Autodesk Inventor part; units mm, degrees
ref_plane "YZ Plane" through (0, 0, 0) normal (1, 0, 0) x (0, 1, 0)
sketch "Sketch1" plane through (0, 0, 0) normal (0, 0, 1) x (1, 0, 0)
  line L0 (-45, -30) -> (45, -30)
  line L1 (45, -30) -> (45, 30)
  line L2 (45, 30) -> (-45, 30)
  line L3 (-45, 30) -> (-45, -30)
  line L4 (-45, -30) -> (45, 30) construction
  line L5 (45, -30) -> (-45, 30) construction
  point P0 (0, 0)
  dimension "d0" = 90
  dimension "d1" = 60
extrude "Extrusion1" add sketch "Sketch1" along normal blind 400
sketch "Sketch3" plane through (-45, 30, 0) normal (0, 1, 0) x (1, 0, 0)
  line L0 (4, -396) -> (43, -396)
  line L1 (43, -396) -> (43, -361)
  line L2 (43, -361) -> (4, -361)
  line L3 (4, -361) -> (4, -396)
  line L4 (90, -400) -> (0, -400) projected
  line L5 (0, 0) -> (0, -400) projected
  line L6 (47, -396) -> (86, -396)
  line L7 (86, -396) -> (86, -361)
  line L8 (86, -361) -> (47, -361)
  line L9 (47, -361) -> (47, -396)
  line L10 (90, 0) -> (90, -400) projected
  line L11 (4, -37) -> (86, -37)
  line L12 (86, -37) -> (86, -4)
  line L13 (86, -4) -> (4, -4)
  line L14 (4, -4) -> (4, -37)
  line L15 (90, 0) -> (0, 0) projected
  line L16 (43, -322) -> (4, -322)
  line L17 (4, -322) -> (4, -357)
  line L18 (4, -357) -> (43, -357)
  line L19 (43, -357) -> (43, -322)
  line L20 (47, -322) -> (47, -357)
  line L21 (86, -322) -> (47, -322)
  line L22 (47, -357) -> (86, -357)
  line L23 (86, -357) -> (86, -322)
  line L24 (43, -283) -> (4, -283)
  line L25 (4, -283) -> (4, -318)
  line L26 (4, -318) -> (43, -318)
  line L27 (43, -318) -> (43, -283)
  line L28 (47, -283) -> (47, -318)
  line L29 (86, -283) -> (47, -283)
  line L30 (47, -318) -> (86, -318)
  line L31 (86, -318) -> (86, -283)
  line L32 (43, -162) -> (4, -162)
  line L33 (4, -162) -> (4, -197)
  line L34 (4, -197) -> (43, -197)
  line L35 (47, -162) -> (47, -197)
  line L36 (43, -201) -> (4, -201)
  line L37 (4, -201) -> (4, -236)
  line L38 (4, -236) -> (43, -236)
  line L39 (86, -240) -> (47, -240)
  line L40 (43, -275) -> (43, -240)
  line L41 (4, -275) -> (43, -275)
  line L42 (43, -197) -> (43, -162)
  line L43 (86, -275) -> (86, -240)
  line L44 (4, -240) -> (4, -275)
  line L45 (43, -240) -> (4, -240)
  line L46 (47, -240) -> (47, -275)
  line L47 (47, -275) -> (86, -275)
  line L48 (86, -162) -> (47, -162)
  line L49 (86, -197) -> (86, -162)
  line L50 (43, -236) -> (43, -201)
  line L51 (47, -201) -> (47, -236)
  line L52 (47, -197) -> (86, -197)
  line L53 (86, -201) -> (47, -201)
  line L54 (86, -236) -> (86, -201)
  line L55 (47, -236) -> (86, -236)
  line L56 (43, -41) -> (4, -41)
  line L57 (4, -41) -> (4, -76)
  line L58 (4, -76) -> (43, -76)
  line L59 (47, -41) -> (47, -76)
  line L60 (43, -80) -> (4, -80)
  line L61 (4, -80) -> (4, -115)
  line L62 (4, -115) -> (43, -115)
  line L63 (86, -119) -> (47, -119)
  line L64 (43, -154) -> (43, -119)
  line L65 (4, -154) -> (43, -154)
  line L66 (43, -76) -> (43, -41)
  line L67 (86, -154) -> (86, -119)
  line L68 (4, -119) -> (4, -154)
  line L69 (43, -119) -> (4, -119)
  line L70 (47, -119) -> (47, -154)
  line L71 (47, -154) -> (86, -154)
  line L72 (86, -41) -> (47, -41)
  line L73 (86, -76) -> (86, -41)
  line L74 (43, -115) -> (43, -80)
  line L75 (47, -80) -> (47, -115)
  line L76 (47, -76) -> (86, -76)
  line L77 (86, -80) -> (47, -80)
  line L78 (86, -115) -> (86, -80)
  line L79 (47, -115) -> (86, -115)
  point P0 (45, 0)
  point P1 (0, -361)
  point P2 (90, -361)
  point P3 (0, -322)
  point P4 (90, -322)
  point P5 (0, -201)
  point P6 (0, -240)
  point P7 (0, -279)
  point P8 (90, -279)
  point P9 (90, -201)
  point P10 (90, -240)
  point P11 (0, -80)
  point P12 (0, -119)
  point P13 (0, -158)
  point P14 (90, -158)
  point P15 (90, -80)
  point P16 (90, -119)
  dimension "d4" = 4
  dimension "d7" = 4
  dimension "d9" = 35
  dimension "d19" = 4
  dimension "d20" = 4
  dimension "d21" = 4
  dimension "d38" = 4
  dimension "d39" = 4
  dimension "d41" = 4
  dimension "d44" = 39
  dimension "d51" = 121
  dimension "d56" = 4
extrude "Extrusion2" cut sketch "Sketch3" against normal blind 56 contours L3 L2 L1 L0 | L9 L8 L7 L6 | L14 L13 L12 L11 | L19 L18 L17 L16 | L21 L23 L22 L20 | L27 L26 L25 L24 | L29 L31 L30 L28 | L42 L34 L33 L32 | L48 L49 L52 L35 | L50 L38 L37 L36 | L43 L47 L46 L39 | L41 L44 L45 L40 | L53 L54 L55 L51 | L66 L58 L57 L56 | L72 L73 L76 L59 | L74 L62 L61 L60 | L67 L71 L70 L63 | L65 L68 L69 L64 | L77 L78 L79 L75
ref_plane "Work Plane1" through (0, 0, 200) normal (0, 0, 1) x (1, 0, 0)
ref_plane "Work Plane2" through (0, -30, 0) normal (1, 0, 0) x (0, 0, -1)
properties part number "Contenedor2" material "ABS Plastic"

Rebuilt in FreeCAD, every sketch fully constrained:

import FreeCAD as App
import Part
import Sketcher
from FreeCAD import Vector
Q = App.Units.Quantity


def add_polygon(sketch, points):
    """Adds a closed chain of lines whose ends are joined by coincident constraints."""
    first, n = sketch.GeometryCount, len(points)
    for a, b in zip(points, points[1:] + points[:1]):
        sketch.addGeometry(Part.LineSegment(App.Vector(*a, 0), App.Vector(*b, 0)), False)
    for i in range(n):
        sketch.addConstraint(Sketcher.Constraint("Coincident", first + i, 2, first + (i + 1) % n, 1))

doc = App.newDocument("Part")
body = doc.addObject("PartDesign::Body", "Body")

# Sketch on XY plane
sketch1 = doc.addObject("Sketcher::SketchObject", "Sketch")
body.addObject(sketch1)
sketch1.AttachmentSupport = (doc.XY_Plane, [""])
sketch1.MapMode = "FlatFace"
add_polygon(sketch1, [(-45, 30), (-45, -30), (45, -30), (45, 30)])  # lines 0-3
sketch1.addConstraint([
    Sketcher.Constraint("Vertical", 0),
    Sketcher.Constraint("Horizontal", 1),
    Sketcher.Constraint("Vertical", 2),
    Sketcher.Constraint("Horizontal", 3),
    Sketcher.Constraint("Symmetric", 0, 2, 2, 2, -1, 1),
    Sketcher.Constraint("DistanceX", 1, 1, 1, 2, Q("90 mm")),
    Sketcher.Constraint("DistanceY", 0, 2, 0, 1, Q("60 mm")),
])
pad1 = doc.addObject("PartDesign::Pad", "Pad")
body.addObject(pad1)
pad1.Profile = sketch1
pad1.Length = 400

# Sketch on XZ plane
sketch2 = doc.addObject("Sketcher::SketchObject", "Sketch001")
body.addObject(sketch2)
sketch2.AttachmentSupport = (doc.XZ_Plane, [""])
sketch2.MapMode = "FlatFace"
sketch2.AttachmentOffset = App.Placement(Vector(0, 0, -30), App.Rotation())
add_polygon(sketch2, [(-41, 361), (-41, 396), (-2, 396), (-2, 361)])  # lines 0-3
add_polygon(sketch2, [(2, 361), (2, 396), (41, 396), (41, 361)])  # lines 4-7
add_polygon(sketch2, [(-41, 4), (-41, 37), (41, 37), (41, 4)])  # lines 8-11
add_polygon(sketch2, [(-2, 357), (-2, 322), (-41, 322), (-41, 357)])  # lines 12-15
add_polygon(sketch2, [(41, 322), (2, 322), (2, 357), (41, 357)])  # lines 16-19
add_polygon(sketch2, [(-2, 318), (-2, 283), (-41, 283), (-41, 318)])  # lines 20-23
add_polygon(sketch2, [(41, 283), (2, 283), (2, 318), (41, 318)])  # lines 24-27
add_polygon(sketch2, [(-2, 197), (-2, 162), (-41, 162), (-41, 197)])  # lines 28-31
add_polygon(sketch2, [(41, 162), (2, 162), (2, 197), (41, 197)])  # lines 32-35
add_polygon(sketch2, [(-2, 236), (-2, 201), (-41, 201), (-41, 236)])  # lines 36-39
add_polygon(sketch2, [(41, 275), (41, 240), (2, 240), (2, 275)])  # lines 40-43
add_polygon(sketch2, [(-41, 275), (-2, 275), (-2, 240), (-41, 240)])  # lines 44-47
add_polygon(sketch2, [(41, 201), (2, 201), (2, 236), (41, 236)])  # lines 48-51
add_polygon(sketch2, [(-2, 76), (-2, 41), (-41, 41), (-41, 76)])  # lines 52-55
add_polygon(sketch2, [(41, 41), (2, 41), (2, 76), (41, 76)])  # lines 56-59
add_polygon(sketch2, [(-2, 115), (-2, 80), (-41, 80), (-41, 115)])  # lines 60-63
add_polygon(sketch2, [(41, 154), (41, 119), (2, 119), (2, 154)])  # lines 64-67
add_polygon(sketch2, [(-41, 154), (-2, 154), (-2, 119), (-41, 119)])  # lines 68-71
add_polygon(sketch2, [(41, 80), (2, 80), (2, 115), (41, 115)])  # lines 72-75
sketch2.addConstraint([
    Sketcher.Constraint("Vertical", 0),
    Sketcher.Constraint("Horizontal", 1),
    Sketcher.Constraint("Vertical", 2),
    Sketcher.Constraint("Horizontal", 3),
    Sketcher.Constraint("Vertical", 4),
    Sketcher.Constraint("Horizontal", 5),
    Sketcher.Constraint("Vertical", 6),
    Sketcher.Constraint("Horizontal", 7),
    Sketcher.Constraint("Vertical", 8),
    Sketcher.Constraint("Horizontal", 9),
    Sketcher.Constraint("Vertical", 10),
    Sketcher.Constraint("Horizontal", 11),
    Sketcher.Constraint("Vertical", 12),
    Sketcher.Constraint("Horizontal", 13),
    Sketcher.Constraint("Vertical", 14),
    Sketcher.Constraint("Horizontal", 15),
    Sketcher.Constraint("Horizontal", 16),
    Sketcher.Constraint("Vertical", 17),
    Sketcher.Constraint("Horizontal", 18),
    Sketcher.Constraint("Vertical", 19),
    Sketcher.Constraint("Vertical", 20),
    Sketcher.Constraint("Horizontal", 21),
    Sketcher.Constraint("Vertical", 22),
    Sketcher.Constraint("Horizontal", 23),
    Sketcher.Constraint("Horizontal", 24),
    Sketcher.Constraint("Vertical", 25),
    Sketcher.Constraint("Horizontal", 26),
    Sketcher.Constraint("Vertical", 27),
    Sketcher.Constraint("Vertical", 28),
    Sketcher.Constraint("Horizontal", 29),
    Sketcher.Constraint("Vertical", 30),
    Sketcher.Constraint("Horizontal", 31),
    Sketcher.Constraint("Horizontal", 32),
    Sketcher.Constraint("Vertical", 33),
    Sketcher.Constraint("Horizontal", 34),
    Sketcher.Constraint("Vertical", 35),
    Sketcher.Constraint("Vertical", 36),
    Sketcher.Constraint("Horizontal", 37),
    Sketcher.Constraint("Vertical", 38),
    Sketcher.Constraint("Horizontal", 39),
    Sketcher.Constraint("Vertical", 40),
    Sketcher.Constraint("Horizontal", 41),
    Sketcher.Constraint("Vertical", 42),
    Sketcher.Constraint("Horizontal", 43),
    Sketcher.Constraint("Horizontal", 44),
    Sketcher.Constraint("Vertical", 45),
    Sketcher.Constraint("Horizontal", 46),
    Sketcher.Constraint("Vertical", 47),
    Sketcher.Constraint("Horizontal", 48),
    Sketcher.Constraint("Vertical", 49),
    Sketcher.Constraint("Horizontal", 50),
    Sketcher.Constraint("Vertical", 51),
    Sketcher.Constraint("Vertical", 52),
    Sketcher.Constraint("Horizontal", 53),
    Sketcher.Constraint("Vertical", 54),
    Sketcher.Constraint("Horizontal", 55),
    Sketcher.Constraint("Horizontal", 56),
    Sketcher.Constraint("Vertical", 57),
    Sketcher.Constraint("Horizontal", 58),
    Sketcher.Constraint("Vertical", 59),
    Sketcher.Constraint("Vertical", 60),
    Sketcher.Constraint("Horizontal", 61),
    Sketcher.Constraint("Vertical", 62),
    Sketcher.Constraint("Horizontal", 63),
    Sketcher.Constraint("Vertical", 64),
    Sketcher.Constraint("Horizontal", 65),
    Sketcher.Constraint("Vertical", 66),
    Sketcher.Constraint("Horizontal", 67),
    Sketcher.Constraint("Horizontal", 68),
    Sketcher.Constraint("Vertical", 69),
    Sketcher.Constraint("Horizontal", 70),
    Sketcher.Constraint("Vertical", 71),
    Sketcher.Constraint("Horizontal", 72),
    Sketcher.Constraint("Vertical", 73),
    Sketcher.Constraint("Horizontal", 74),
    Sketcher.Constraint("Vertical", 75),
    Sketcher.Constraint("Symmetric", 1, 2, 4, 2, -2),
    Sketcher.Constraint("Symmetric", 3, 2, 6, 2, -2),
    Sketcher.Constraint("Symmetric", 12, 2, 16, 2, -2),
    Sketcher.Constraint("Symmetric", 14, 2, 18, 2, -2),
    Sketcher.Constraint("Symmetric", 20, 2, 24, 2, -2),
    Sketcher.Constraint("Symmetric", 22, 2, 26, 2, -2),
    Sketcher.Constraint("Symmetric", 28, 2, 32, 2, -2),
    Sketcher.Constraint("Symmetric", 30, 2, 34, 2, -2),
    Sketcher.Constraint("Symmetric", 42, 2, 44, 2, -2),
    Sketcher.Constraint("Symmetric", 40, 2, 46, 2, -2),
    Sketcher.Constraint("Symmetric", 36, 2, 48, 2, -2),
    Sketcher.Constraint("Symmetric", 38, 2, 50, 2, -2),
    Sketcher.Constraint("Symmetric", 52, 2, 56, 2, -2),
    Sketcher.Constraint("Symmetric", 54, 2, 58, 2, -2),
    Sketcher.Constraint("Symmetric", 66, 2, 68, 2, -2),
    Sketcher.Constraint("Symmetric", 64, 2, 70, 2, -2),
    Sketcher.Constraint("Symmetric", 60, 2, 72, 2, -2),
    Sketcher.Constraint("Symmetric", 62, 2, 74, 2, -2),
    Sketcher.Constraint("Vertical", 3, 2, 8, 2),
    Sketcher.Constraint("Vertical", 6, 2, 9, 2),
    Sketcher.Constraint("Vertical", 2, 2, 12, 2),
    Sketcher.Constraint("Vertical", 11, 2, 13, 2),
    Sketcher.Constraint("Vertical", 15, 2, 20, 2),
    Sketcher.Constraint("Vertical", 14, 2, 21, 2),
    Sketcher.Constraint("Vertical", 23, 2, 28, 2),
    Sketcher.Constraint("Vertical", 22, 2, 29, 2),
    Sketcher.Constraint("Vertical", 31, 2, 36, 2),
    Sketcher.Constraint("Vertical", 30, 2, 37, 2),
    Sketcher.Constraint("Vertical", 35, 2, 40, 2),
    Sketcher.Constraint("Vertical", 33, 2, 41, 2),
    Sketcher.Constraint("Vertical", 45, 2, 52, 2),
    Sketcher.Constraint("Vertical", 47, 2, 53, 2),
    Sketcher.Constraint("Vertical", 55, 2, 60, 2),
    Sketcher.Constraint("Vertical", 54, 2, 61, 2),
    Sketcher.Constraint("Vertical", 59, 2, 64, 2),
    Sketcher.Constraint("Vertical", 57, 2, 65, 2),
    Sketcher.Constraint("Equal", 6, 12),
    Sketcher.Constraint("Equal", 19, 20),
    Sketcher.Constraint("Equal", 27, 28),
    Sketcher.Constraint("Equal", 35, 36),
    Sketcher.Constraint("Equal", 38, 40),
    Sketcher.Constraint("Equal", 51, 52),
    Sketcher.Constraint("Equal", 59, 60),
    Sketcher.Constraint("Equal", 62, 64),
    Sketcher.Constraint("DistanceX", 1, 1, 1, 2, Q("39 mm")),
    Sketcher.Constraint("DistanceY", 0, 1, 0, 2, Q("35 mm")),
    Sketcher.Constraint("DistanceY", -1, 1, 10, 2, Q("4 mm")),
    Sketcher.Constraint("DistanceX", 9, 1, 9, 2, Q("82 mm")),
    Sketcher.Constraint("DistanceY", 8, 1, 8, 2, Q("33 mm")),
    Sketcher.Constraint("DistanceY", -1, 1, 0, 2, Q("396 mm")),
    Sketcher.Constraint("DistanceY", -1, 1, 12, 2, Q("322 mm")),
    Sketcher.Constraint("DistanceY", -1, 1, 20, 2, Q("283 mm")),
    Sketcher.Constraint("DistanceY", -1, 1, 28, 2, Q("162 mm")),
    Sketcher.Constraint("DistanceY", -1, 1, 36, 2, Q("201 mm")),
    Sketcher.Constraint("DistanceY", -1, 1, 40, 2, Q("240 mm")),
    Sketcher.Constraint("DistanceY", -1, 1, 52, 2, Q("41 mm")),
    Sketcher.Constraint("DistanceY", -1, 1, 60, 2, Q("80 mm")),
    Sketcher.Constraint("DistanceY", -1, 1, 64, 2, Q("119 mm")),
])
pocket1 = doc.addObject("PartDesign::Pocket", "Pocket")
body.addObject(pocket1)
pocket1.Profile = sketch2
pocket1.Length = 56
pocket1.Reversed = True

doc.recompute()
